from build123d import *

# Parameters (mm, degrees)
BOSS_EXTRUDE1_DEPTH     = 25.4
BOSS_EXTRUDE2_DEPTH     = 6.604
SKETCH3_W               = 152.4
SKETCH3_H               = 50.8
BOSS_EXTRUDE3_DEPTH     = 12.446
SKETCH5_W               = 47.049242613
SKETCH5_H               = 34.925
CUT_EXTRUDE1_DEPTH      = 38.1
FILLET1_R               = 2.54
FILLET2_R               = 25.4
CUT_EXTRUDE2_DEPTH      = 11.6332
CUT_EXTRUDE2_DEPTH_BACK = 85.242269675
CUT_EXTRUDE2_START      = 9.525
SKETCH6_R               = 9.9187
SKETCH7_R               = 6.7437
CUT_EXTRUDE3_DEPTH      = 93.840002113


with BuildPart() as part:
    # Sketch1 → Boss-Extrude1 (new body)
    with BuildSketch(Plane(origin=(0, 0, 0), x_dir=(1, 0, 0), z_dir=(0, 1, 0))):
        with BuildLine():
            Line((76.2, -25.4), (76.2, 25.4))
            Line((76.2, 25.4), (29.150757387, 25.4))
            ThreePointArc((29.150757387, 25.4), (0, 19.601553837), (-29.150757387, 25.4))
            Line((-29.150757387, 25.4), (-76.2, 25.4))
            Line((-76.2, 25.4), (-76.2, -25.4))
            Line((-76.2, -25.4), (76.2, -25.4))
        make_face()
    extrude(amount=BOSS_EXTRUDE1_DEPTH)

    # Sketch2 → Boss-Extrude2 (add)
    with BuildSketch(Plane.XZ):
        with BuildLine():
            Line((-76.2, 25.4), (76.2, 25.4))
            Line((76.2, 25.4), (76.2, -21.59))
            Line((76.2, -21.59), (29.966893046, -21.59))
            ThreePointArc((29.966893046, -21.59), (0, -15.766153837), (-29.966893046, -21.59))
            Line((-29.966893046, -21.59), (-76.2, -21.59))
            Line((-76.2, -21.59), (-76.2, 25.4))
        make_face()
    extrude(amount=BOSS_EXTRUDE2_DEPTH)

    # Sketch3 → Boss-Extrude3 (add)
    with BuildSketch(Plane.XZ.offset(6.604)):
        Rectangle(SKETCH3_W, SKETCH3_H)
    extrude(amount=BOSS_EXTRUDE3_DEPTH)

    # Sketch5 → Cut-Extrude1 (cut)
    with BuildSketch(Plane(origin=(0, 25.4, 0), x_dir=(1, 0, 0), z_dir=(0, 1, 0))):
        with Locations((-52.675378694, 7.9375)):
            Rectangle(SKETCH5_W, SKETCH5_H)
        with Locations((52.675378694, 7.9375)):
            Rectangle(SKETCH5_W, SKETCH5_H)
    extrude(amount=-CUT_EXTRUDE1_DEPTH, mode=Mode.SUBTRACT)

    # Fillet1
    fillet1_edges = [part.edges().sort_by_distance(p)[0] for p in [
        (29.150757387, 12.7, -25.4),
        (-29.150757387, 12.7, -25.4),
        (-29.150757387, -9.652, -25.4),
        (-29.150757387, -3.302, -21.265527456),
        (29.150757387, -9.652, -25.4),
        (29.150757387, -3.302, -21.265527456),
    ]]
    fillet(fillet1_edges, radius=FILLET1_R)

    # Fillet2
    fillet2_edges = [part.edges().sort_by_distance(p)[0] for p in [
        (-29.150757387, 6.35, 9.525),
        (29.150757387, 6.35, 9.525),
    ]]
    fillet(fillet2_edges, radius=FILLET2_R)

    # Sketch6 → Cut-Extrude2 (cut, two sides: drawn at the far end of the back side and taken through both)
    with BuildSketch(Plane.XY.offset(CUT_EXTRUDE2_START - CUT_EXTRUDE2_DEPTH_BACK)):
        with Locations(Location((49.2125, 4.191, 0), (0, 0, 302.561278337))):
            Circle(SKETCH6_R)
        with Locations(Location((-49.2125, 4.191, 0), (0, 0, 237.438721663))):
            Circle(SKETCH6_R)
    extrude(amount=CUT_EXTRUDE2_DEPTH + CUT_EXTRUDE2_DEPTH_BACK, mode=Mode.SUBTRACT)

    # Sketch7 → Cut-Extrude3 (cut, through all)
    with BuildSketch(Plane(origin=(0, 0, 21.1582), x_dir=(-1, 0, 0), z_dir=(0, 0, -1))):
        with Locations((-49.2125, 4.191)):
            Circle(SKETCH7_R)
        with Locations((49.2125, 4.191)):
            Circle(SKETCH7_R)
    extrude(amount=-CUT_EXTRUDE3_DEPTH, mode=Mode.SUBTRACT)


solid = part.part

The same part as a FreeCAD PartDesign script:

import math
import FreeCAD as App
import Part
import Sketcher
Q = App.Units.Quantity


def edges_at(feature, points):
    """Names of the edges that pass closest to the given points."""
    edges = feature.Shape.Edges
    near = lambda p: min(range(len(edges)), key=lambda i: edges[i].distToShape(Part.Vertex(*p))[0])
    return sorted({f"Edge{near(p) + 1}" for p in points})

doc = App.newDocument("Part")
body = doc.addObject("PartDesign::Body", "Body")

sketch1 = body.newObject("Sketcher::SketchObject", "Sketch")
sketch1.AttachmentSupport = (doc.getObject("XZ_Plane"), [""])
sketch1.MapMode = "FlatFace"
sketch1.addGeometry([
    Part.LineSegment(App.Vector(76, 25, 0), App.Vector(76, -25, 0)),
    Part.LineSegment(App.Vector(76, -25, 0), App.Vector(29, -25, 0)),
    Part.ArcOfCircle(Part.Circle(App.Vector(0, -96, 0), App.Vector(0, 0, 1), 76), math.radians(67), math.radians(113)),
    Part.LineSegment(App.Vector(-29, -25, 0), App.Vector(-76, -25, 0)),
    Part.LineSegment(App.Vector(-76, -25, 0), App.Vector(-76, 25, 0)),
    Part.LineSegment(App.Vector(-76, 25, 0), App.Vector(76, 25, 0)),
], False)
sketch1.addConstraint([
    Sketcher.Constraint("Coincident", 0, 2, 1, 1),
    Sketcher.Constraint("Coincident", 1, 2, 2, 1),
    Sketcher.Constraint("Coincident", 2, 2, 3, 1),
    Sketcher.Constraint("Coincident", 3, 2, 4, 1),
    Sketcher.Constraint("Coincident", 4, 2, 5, 1),
    Sketcher.Constraint("Coincident", 5, 2, 0, 1),
    Sketcher.Constraint("Vertical", 0),
    Sketcher.Constraint("Horizontal", 1),
    Sketcher.Constraint("Horizontal", 3),
    Sketcher.Constraint("Vertical", 4),
    Sketcher.Constraint("Horizontal", 5),
    Sketcher.Constraint("Symmetric", 0, 2, 4, 2, -1, 1),
    Sketcher.Constraint("Symmetric", 1, 2, 2, 2, -2),
    Sketcher.Constraint("DistanceX", 5, 1, 5, 2, Q("6 in")),
    Sketcher.Constraint("DistanceY", 0, 2, 0, 1, Q("2 in")),
    Sketcher.Constraint("Radius", 2, Q("2.999 in")),
    Sketcher.Constraint("DistanceX", 1, 2, 1, 1, 47.049243),
])
pad1 = body.newObject("PartDesign::Pad", "Pad")
pad1.Profile = sketch1
pad1.Length = Q("1 in")
pad1.Reversed = True

sketch2 = body.newObject("Sketcher::SketchObject", "Sketch001")
sketch2.AttachmentSupport = (doc.getObject("XZ_Plane"), [""])
sketch2.MapMode = "FlatFace"
sketch2.addGeometry([
    Part.LineSegment(App.Vector(76, 25, 0), App.Vector(-76, 25, 0)),
    Part.LineSegment(App.Vector(-76, 25, 0), App.Vector(-76, -22, 0)),
    Part.LineSegment(App.Vector(-76, -22, 0), App.Vector(-30, -22, 0)),
    Part.ArcOfCircle(Part.Circle(App.Vector(0, -96, 0), App.Vector(0, 0, 1), 80), math.radians(68), math.radians(112)),
    Part.LineSegment(App.Vector(30, -22, 0), App.Vector(76, -22, 0)),
    Part.LineSegment(App.Vector(76, -22, 0), App.Vector(76, 25, 0)),
], False)
sketch2.addConstraint([
    Sketcher.Constraint("Coincident", 0, 2, 1, 1),
    Sketcher.Constraint("Coincident", 1, 2, 2, 1),
    Sketcher.Constraint("Coincident", 2, 2, 3, 2),
    Sketcher.Constraint("Coincident", 3, 1, 4, 1),
    Sketcher.Constraint("Coincident", 4, 2, 5, 1),
    Sketcher.Constraint("Coincident", 5, 2, 0, 1),
    Sketcher.Constraint("Horizontal", 0),
    Sketcher.Constraint("Vertical", 1),
    Sketcher.Constraint("Horizontal", 2),
    Sketcher.Constraint("Horizontal", 4),
    Sketcher.Constraint("Vertical", 5),
    Sketcher.Constraint("Symmetric", 2, 2, 3, 1, -2),
    Sketcher.Constraint("Equal", 2, 4),
    Sketcher.Constraint("DistanceX", 0, 2, 0, 1, Q("6 in")),
    Sketcher.Constraint("Radius", 3, Q("3.15 in")),
    Sketcher.Constraint("DistanceY", -1, 1, 0, 2, Q("1 in")),
    Sketcher.Constraint("DistanceY", 1, 2, 1, 1, Q("1.85 in")),
    Sketcher.Constraint("DistanceX", 2, 1, 2, 2, 46.233107),
])
pad2 = body.newObject("PartDesign::Pad", "Pad001")
pad2.Profile = sketch2
pad2.Length = Q("0.26 in")

sketch3 = body.newObject("Sketcher::SketchObject", "Sketch002")
sketch3.AttachmentSupport = (doc.getObject("XZ_Plane"), [""])
sketch3.MapMode = "FlatFace"
sketch3.AttachmentOffset = App.Placement(App.Vector(0, 0, 0.26 * 25.4), App.Rotation())
sketch3.addGeometry([
    Part.LineSegment(App.Vector(-76, 25, 0), App.Vector(-76, -25, 0)),
    Part.LineSegment(App.Vector(-76, -25, 0), App.Vector(76, -25, 0)),
    Part.LineSegment(App.Vector(76, -25, 0), App.Vector(76, 25, 0)),
    Part.LineSegment(App.Vector(76, 25, 0), App.Vector(-76, 25, 0)),
], False)
sketch3.addConstraint([
    Sketcher.Constraint("Coincident", 0, 2, 1, 1),
    Sketcher.Constraint("Coincident", 1, 2, 2, 1),
    Sketcher.Constraint("Coincident", 2, 2, 3, 1),
    Sketcher.Constraint("Coincident", 3, 2, 0, 1),
    Sketcher.Constraint("Vertical", 0),
    Sketcher.Constraint("Horizontal", 1),
    Sketcher.Constraint("Vertical", 2),
    Sketcher.Constraint("Horizontal", 3),
    Sketcher.Constraint("Symmetric", 0, 2, 2, 2, -1, 1),
    Sketcher.Constraint("DistanceX", 1, 1, 1, 2, Q("6 in")),
    Sketcher.Constraint("DistanceY", 0, 2, 0, 1, Q("2 in")),
])
pad3 = body.newObject("PartDesign::Pad", "Pad002")
pad3.Profile = sketch3
pad3.Length = Q("0.49 in")

sketch4 = body.newObject("Sketcher::SketchObject", "Sketch003")
sketch4.AttachmentSupport = (doc.getObject("XZ_Plane"), [""])
sketch4.MapMode = "FlatFace"
sketch4.AttachmentOffset = App.Placement(App.Vector(0, 0, -1 * 25.4), App.Rotation())
sketch4.addGeometry([
    Part.LineSegment(App.Vector(-76, -25, 0), App.Vector(-76, 10, 0)),
    Part.LineSegment(App.Vector(-76, 10, 0), App.Vector(-29, 10, 0)),
    Part.LineSegment(App.Vector(-29, 10, 0), App.Vector(-29, -25, 0)),
    Part.LineSegment(App.Vector(-29, -25, 0), App.Vector(-76, -25, 0)),
    Part.LineSegment(App.Vector(29, -25, 0), App.Vector(29, 10, 0)),
    Part.LineSegment(App.Vector(29, 10, 0), App.Vector(76, 10, 0)),
    Part.LineSegment(App.Vector(76, 10, 0), App.Vector(76, -25, 0)),
    Part.LineSegment(App.Vector(76, -25, 0), App.Vector(29, -25, 0)),
], False)
sketch4.addConstraint([
    Sketcher.Constraint("Coincident", 0, 2, 1, 1),
    Sketcher.Constraint("Coincident", 1, 2, 2, 1),
    Sketcher.Constraint("Coincident", 2, 2, 3, 1),
    Sketcher.Constraint("Coincident", 3, 2, 0, 1),
    Sketcher.Constraint("Coincident", 4, 2, 5, 1),
    Sketcher.Constraint("Coincident", 5, 2, 6, 1),
    Sketcher.Constraint("Coincident", 6, 2, 7, 1),
    Sketcher.Constraint("Coincident", 7, 2, 4, 1),
    Sketcher.Constraint("Vertical", 0),
    Sketcher.Constraint("Horizontal", 1),
    Sketcher.Constraint("Vertical", 2),
    Sketcher.Constraint("Horizontal", 3),
    Sketcher.Constraint("Vertical", 4),
    Sketcher.Constraint("Horizontal", 5),
    Sketcher.Constraint("Vertical", 6),
    Sketcher.Constraint("Horizontal", 7),
    Sketcher.Constraint("Symmetric", 1, 2, 4, 2, -2),
    Sketcher.Constraint("Symmetric", 3, 2, 6, 2, -2),
    Sketcher.Constraint("DistanceX", 0, 2, -1, 1, Q("3 in")),
    Sketcher.Constraint("DistanceY", 2, 2, -1, 1, Q("1 in")),
    Sketcher.Constraint("DistanceY", 0, 1, 0, 2, Q("1.375 in")),
    Sketcher.Constraint("DistanceX", 1, 1, 1, 2, 47.049243),
])
pocket1 = body.newObject("PartDesign::Pocket", "Pocket")
pocket1.Profile = sketch4
pocket1.Length = Q("1.5 in")
pocket1.Reversed = True
doc.recompute()

fillet = body.newObject("PartDesign::Fillet", "Fillet")
fillet.Base = (pocket1, edges_at(pocket1, [
    (29.151, 12.7, -25.4),
    (-29.151, 12.7, -25.4),
    (-29.151, -9.652, -25.4),
    (-29.151, -3.302, -21.266),
    (29.151, -9.652, -25.4),
    (29.151, -3.302, -21.266),
]))
fillet.Radius = Q("0.1 in")
doc.recompute()

fillet2 = body.newObject("PartDesign::Fillet", "Fillet001")
fillet2.Base = (fillet, edges_at(fillet, [(-29.151, 6.35, 9.525), (29.151, 6.35, 9.525)]))
fillet2.Radius = Q("1 in")

sketch5 = body.newObject("Sketcher::SketchObject", "Sketch004")
sketch5.AttachmentSupport = (doc.getObject("XY_Plane"), [""])
sketch5.MapMode = "FlatFace"
sketch5.AttachmentOffset = App.Placement(App.Vector(0, 0, 0.375 * 25.4), App.Rotation())
sketch5.addGeometry([
    Part.Circle(App.Vector(49, 4, 0), App.Vector(0, 0, 1), 10),
    Part.Circle(App.Vector(-49, 4, 0), App.Vector(0, 0, 1), 10),
], False)
sketch5.addConstraint([
    Sketcher.Constraint("Equal", 0, 1),
    Sketcher.Constraint("Symmetric", 0, 3, 1, 3, -2),
    Sketcher.Constraint("Diameter", 0, Q("0.781 in")),
    Sketcher.Constraint("DistanceX", -1, 1, 0, 3, Q("1.9375 in")),
    Sketcher.Constraint("DistanceY", -1, 1, 0, 3, Q("0.165 in")),
])
pocket2 = body.newObject("PartDesign::Pocket", "Pocket001")
pocket2.Profile = sketch5
pocket2.Type = "TwoLengths"
pocket2.Length = Q("0.458 in")
pocket2.Length2 = 85.24227
pocket2.Reversed = True

sketch6 = body.newObject("Sketcher::SketchObject", "Sketch005")
sketch6.AttachmentSupport = (doc.getObject("XY_Plane"), [""])
sketch6.MapMode = "FlatFace"
sketch6.AttachmentOffset = App.Placement(App.Vector(0, 0, 0.833 * 25.4), App.Rotation())
sketch6.addGeometry([
    Part.Circle(App.Vector(49, 4, 0), App.Vector(0, 0, 1), 7),
    Part.Circle(App.Vector(-49, 4, 0), App.Vector(0, 0, 1), 7),
], False)
sketch6.addConstraint([
    Sketcher.Constraint("Equal", 0, 1),
    Sketcher.Constraint("Symmetric", 0, 3, 1, 3, -2),
    Sketcher.Constraint("Diameter", 0, Q("0.531 in")),
    Sketcher.Constraint("DistanceX", -1, 1, 0, 3, Q("1.9375 in")),
    Sketcher.Constraint("DistanceY", -1, 1, 0, 3, Q("0.165 in")),
])
pocket3 = body.newObject("PartDesign::Pocket", "Pocket002")
pocket3.Profile = sketch6
pocket3.Type = "ThroughAll"
pocket3.Reversed = True

doc.recompute()
